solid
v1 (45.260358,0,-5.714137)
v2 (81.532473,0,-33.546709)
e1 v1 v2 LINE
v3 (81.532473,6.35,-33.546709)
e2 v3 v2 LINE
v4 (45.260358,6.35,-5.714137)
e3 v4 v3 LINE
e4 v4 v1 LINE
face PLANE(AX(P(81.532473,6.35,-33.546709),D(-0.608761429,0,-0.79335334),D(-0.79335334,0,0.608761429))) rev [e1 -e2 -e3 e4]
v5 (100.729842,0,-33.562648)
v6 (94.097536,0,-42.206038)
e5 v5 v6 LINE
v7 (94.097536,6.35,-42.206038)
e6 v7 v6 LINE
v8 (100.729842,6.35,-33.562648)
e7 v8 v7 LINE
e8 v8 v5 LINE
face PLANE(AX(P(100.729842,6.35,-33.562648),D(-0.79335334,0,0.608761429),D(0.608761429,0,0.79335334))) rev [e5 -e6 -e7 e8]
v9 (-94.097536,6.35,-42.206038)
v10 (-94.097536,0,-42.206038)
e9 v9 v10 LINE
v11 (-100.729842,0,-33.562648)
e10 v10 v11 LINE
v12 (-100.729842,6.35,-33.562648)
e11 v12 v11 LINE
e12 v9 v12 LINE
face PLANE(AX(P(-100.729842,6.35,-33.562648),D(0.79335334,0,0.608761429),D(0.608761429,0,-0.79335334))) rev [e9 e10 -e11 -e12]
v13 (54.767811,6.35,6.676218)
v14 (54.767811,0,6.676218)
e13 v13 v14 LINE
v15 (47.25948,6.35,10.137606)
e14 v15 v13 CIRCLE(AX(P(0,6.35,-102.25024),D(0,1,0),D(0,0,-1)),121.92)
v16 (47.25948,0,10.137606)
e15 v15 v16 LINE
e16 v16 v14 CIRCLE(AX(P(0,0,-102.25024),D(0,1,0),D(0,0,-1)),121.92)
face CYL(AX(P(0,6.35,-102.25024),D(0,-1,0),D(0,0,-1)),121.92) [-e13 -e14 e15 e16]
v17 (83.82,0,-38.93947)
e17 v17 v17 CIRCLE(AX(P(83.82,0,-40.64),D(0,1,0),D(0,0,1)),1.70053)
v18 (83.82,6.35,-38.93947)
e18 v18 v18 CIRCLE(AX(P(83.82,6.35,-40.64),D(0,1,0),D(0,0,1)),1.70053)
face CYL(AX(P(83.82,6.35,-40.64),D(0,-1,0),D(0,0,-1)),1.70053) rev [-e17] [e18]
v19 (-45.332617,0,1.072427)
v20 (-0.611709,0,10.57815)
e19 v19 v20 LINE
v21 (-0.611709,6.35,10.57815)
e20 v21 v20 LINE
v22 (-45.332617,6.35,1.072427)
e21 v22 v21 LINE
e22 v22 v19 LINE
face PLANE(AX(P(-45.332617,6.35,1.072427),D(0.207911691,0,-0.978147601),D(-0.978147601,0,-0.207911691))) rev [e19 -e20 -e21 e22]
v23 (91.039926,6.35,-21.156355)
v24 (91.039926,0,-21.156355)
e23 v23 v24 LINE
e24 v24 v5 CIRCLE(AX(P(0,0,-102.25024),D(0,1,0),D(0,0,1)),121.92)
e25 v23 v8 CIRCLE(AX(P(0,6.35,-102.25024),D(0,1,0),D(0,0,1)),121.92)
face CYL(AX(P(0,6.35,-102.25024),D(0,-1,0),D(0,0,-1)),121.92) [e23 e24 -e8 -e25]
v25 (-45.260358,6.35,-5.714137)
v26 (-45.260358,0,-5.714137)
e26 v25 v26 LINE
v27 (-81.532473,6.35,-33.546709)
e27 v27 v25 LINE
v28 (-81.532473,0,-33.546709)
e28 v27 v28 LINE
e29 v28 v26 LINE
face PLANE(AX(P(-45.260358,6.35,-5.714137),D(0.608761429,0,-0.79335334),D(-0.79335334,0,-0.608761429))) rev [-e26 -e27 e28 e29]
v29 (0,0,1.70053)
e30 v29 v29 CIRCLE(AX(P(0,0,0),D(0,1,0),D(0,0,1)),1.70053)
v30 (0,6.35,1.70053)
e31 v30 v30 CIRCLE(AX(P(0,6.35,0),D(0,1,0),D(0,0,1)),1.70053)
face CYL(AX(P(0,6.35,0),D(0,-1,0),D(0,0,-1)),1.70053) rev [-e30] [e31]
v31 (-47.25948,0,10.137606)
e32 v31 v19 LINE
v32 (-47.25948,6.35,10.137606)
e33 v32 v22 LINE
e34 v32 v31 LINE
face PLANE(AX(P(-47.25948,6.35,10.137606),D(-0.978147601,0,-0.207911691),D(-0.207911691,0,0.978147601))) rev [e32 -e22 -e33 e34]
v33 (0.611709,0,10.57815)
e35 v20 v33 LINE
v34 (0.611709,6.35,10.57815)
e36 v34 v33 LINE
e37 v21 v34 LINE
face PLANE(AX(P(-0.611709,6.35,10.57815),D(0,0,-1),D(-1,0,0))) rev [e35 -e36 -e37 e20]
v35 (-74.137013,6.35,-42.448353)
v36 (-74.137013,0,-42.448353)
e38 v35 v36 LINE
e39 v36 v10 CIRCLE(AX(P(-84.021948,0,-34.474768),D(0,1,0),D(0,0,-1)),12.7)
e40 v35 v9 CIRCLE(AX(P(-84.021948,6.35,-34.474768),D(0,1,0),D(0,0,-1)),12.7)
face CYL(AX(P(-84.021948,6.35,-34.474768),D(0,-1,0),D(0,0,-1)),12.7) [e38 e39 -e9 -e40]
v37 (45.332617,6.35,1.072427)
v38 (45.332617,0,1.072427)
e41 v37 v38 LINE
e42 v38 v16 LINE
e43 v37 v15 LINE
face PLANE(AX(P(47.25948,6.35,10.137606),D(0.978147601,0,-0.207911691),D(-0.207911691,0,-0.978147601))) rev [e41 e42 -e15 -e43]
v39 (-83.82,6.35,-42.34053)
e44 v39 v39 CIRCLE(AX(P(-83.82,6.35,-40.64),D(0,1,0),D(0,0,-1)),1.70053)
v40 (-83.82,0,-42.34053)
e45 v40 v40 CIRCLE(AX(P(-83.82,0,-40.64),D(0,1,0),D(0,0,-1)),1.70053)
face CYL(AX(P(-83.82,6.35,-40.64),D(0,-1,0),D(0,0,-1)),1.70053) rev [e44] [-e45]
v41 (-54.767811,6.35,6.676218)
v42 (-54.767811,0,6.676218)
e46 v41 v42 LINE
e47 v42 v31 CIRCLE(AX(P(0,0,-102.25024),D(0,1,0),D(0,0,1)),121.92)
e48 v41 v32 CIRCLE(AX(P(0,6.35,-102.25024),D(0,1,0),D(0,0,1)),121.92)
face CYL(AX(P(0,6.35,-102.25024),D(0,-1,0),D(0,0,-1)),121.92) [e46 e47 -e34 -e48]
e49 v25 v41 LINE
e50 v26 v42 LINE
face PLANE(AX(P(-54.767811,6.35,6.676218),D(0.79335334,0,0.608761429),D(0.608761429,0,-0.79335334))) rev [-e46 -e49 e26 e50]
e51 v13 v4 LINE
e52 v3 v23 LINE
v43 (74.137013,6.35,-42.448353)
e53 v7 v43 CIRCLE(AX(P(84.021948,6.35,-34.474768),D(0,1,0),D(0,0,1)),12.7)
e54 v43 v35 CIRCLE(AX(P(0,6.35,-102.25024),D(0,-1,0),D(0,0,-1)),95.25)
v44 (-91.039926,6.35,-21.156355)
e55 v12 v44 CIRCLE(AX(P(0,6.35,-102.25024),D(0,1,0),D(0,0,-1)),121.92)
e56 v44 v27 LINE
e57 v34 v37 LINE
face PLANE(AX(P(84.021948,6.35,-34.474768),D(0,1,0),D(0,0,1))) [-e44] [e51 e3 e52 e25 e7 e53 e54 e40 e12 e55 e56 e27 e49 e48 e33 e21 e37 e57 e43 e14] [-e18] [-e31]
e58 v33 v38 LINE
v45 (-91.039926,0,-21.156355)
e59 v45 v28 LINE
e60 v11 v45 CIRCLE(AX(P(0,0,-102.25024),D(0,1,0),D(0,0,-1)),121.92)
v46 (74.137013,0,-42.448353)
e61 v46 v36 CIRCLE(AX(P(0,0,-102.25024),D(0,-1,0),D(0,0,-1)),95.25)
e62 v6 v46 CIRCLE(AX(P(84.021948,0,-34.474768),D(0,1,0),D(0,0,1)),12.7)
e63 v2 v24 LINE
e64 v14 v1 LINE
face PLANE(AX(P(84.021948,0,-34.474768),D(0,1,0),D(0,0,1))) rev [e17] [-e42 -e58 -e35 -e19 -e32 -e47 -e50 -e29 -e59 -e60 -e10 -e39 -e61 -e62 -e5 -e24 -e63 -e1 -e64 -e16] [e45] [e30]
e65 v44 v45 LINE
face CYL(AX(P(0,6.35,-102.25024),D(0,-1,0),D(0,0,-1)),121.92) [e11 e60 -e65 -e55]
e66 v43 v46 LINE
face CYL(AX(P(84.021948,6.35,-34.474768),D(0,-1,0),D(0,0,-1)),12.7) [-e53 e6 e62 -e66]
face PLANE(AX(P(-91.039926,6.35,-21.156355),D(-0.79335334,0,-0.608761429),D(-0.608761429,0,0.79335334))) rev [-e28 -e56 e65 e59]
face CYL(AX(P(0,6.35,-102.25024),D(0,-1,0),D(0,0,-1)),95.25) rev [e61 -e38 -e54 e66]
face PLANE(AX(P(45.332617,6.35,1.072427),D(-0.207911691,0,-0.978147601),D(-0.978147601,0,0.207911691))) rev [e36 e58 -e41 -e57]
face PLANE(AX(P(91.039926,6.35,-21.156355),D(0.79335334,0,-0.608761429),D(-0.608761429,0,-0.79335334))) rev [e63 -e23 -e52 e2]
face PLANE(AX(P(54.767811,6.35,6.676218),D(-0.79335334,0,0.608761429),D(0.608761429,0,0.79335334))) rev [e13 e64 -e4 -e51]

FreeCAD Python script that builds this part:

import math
import FreeCAD as App
import Part
import Sketcher
from FreeCAD import Vector
Q = App.Units.Quantity

doc = App.newDocument("Part")
body = doc.addObject("PartDesign::Body", "Body")

# Sketch on XZ plane
sketch1 = body.newObject("Sketcher::SketchObject", "Sketch")
sketch1.AttachmentSupport = (doc.getObject("XZ_Plane"), [""])
sketch1.MapMode = "FlatFace"
sketch1.addGeometry([
    Part.LineSegment(Vector(100.7, -33.6, 0), Vector(94.1, -42.2, 0)),  # 0
    Part.ArcOfCircle(Part.Circle(Vector(84, -34.5, 0), Vector(0, 0, 1), 12.7), math.radians(-141), math.radians(-37)),  # 1
    Part.ArcOfCircle(Part.Circle(Vector(0, -102.3, 0), Vector(0, 0, 1), 95.2), math.radians(39), math.radians(141)),  # 2
    Part.ArcOfCircle(Part.Circle(Vector(-84, -34.5, 0), Vector(0, 0, 1), 12.7), math.radians(-143), math.radians(-39)),  # 3
    Part.LineSegment(Vector(-94.1, -42.2, 0), Vector(-100.7, -33.6, 0)),  # 4
    Part.ArcOfCircle(Part.Circle(Vector(0, -102.3, 0), Vector(0, 0, 1), 121.9), math.radians(138.31), math.radians(145.71)),  # 5
    Part.LineSegment(Vector(-91, -21.2, 0), Vector(-81.5, -33.5, 0)),  # 6
    Part.LineSegment(Vector(-81.5, -33.5, 0), Vector(-45.3, -5.7, 0)),  # 7
    Part.LineSegment(Vector(-45.3, -5.7, 0), Vector(-54.8, 6.7, 0)),  # 8
    Part.ArcOfCircle(Part.Circle(Vector(0, -102.3, 0), Vector(0, 0, 1), 121.9), math.radians(112.81), math.radians(116.69)),  # 9
    Part.LineSegment(Vector(-47.3, 10.1, 0), Vector(-45.3, 1.1, 0)),  # 10
    Part.LineSegment(Vector(-45.3, 1.1, 0), Vector(-0.6, 10.6, 0)),  # 11
    Part.LineSegment(Vector(-0.6, 10.6, 0), Vector(0.6, 10.6, 0)),  # 12
    Part.LineSegment(Vector(0.6, 10.6, 0), Vector(45.3, 1.1, 0)),  # 13
    Part.LineSegment(Vector(45.3, 1.1, 0), Vector(47.3, 10.1, 0)),  # 14
    Part.ArcOfCircle(Part.Circle(Vector(0, -102.3, 0), Vector(0, 0, 1), 121.9), math.radians(63.31), math.radians(67.19)),  # 15
    Part.LineSegment(Vector(54.8, 6.7, 0), Vector(45.3, -5.7, 0)),  # 16
    Part.LineSegment(Vector(45.3, -5.7, 0), Vector(81.5, -33.5, 0)),  # 17
    Part.LineSegment(Vector(81.5, -33.5, 0), Vector(91, -21.2, 0)),  # 18
    Part.ArcOfCircle(Part.Circle(Vector(0, -102.3, 0), Vector(0, 0, 1), 121.9), math.radians(34.29), math.radians(41.69)),  # 19
    Part.Circle(Vector(0, 0, 0), Vector(0, 0, 1), 1.7),  # 20
    Part.Circle(Vector(-83.8, -40.6, 0), Vector(0, 0, 1), 1.7),  # 21
    Part.Circle(Vector(83.8, -40.6, 0), Vector(0, 0, 1), 1.7),  # 22
], False)
sketch1.addConstraint([
    Sketcher.Constraint("Tangent", 0, 2, 1, 2),
    Sketcher.Constraint("Tangent", 1, 1, 2, 1),
    Sketcher.Constraint("Tangent", 2, 2, 3, 2),
    Sketcher.Constraint("Tangent", 3, 1, 4, 1),
    Sketcher.Constraint("Coincident", 4, 2, 5, 2),
    Sketcher.Constraint("Coincident", 5, 1, 6, 1),
    Sketcher.Constraint("Coincident", 6, 2, 7, 1),
    Sketcher.Constraint("Coincident", 7, 2, 8, 1),
    Sketcher.Constraint("Coincident", 8, 2, 9, 2),
    Sketcher.Constraint("Coincident", 9, 1, 10, 1),
    Sketcher.Constraint("Coincident", 10, 2, 11, 1),
    Sketcher.Constraint("Coincident", 11, 2, 12, 1),
    Sketcher.Constraint("Coincident", 12, 2, 13, 1),
    Sketcher.Constraint("Coincident", 13, 2, 14, 1),
    Sketcher.Constraint("Coincident", 14, 2, 15, 2),
    Sketcher.Constraint("Coincident", 15, 1, 16, 1),
    Sketcher.Constraint("Coincident", 16, 2, 17, 1),
    Sketcher.Constraint("Coincident", 17, 2, 18, 1),
    Sketcher.Constraint("Coincident", 18, 2, 19, 2),
    Sketcher.Constraint("Coincident", 19, 1, 0, 1),
    Sketcher.Constraint("Horizontal", 12),
    Sketcher.Constraint("Coincident", 20, 3, -1, 1),
    Sketcher.Constraint("Coincident", 5, 3, 2, 3),
    Sketcher.Constraint("Coincident", 9, 3, 2, 3),
    Sketcher.Constraint("Coincident", 15, 3, 2, 3),
    Sketcher.Constraint("Coincident", 19, 3, 2, 3),
    Sketcher.Constraint("Equal", 1, 3),
    Sketcher.Constraint("Equal", 5, 9),
    Sketcher.Constraint("Equal", 9, 15),
    Sketcher.Constraint("Equal", 15, 19),
    Sketcher.Constraint("Equal", 20, 21),
    Sketcher.Constraint("Equal", 21, 22),
    Sketcher.Constraint("Symmetric", 1, 3, 3, 3, -2),
    Sketcher.Constraint("Symmetric", 21, 3, 22, 3, -2),
    Sketcher.Constraint("Symmetric", 10, 2, 13, 2, -2),
    Sketcher.Constraint("Symmetric", 7, 2, 16, 2, -2),
    Sketcher.Constraint("Symmetric", 6, 2, 17, 2, -2),
    Sketcher.Constraint("Parallel", 4, 6),
    Sketcher.Constraint("Perpendicular", 6, 7),
    Sketcher.Constraint("Perpendicular", 7, 8),
    Sketcher.Constraint("Perpendicular", 10, 11),
    Sketcher.Constraint("Perpendicular", 13, 14),
    Sketcher.Constraint("Parallel", 0, 16),
    Sketcher.Constraint("Perpendicular", 16, 17),
    Sketcher.Constraint("Perpendicular", 17, 18),
    Sketcher.Constraint("Equal", 6, 8),
    Sketcher.Constraint("Equal", 7, 11),
    Sketcher.Constraint("Equal", 11, 13),
    Sketcher.Constraint("Radius", 1, Q("0.5 in")),
    Sketcher.Constraint("Radius", 5, Q("4.8 in")),
    Sketcher.Constraint("Radius", 2, Q("3.75 in")),
    Sketcher.Constraint("Angle", 10, Q("-78 deg")),
    Sketcher.Constraint("Distance", 7, Q("1.8 in")),
    Sketcher.Constraint("Diameter", 20, Q("0.1339 in")),
    Sketcher.Constraint("DistanceX", 21, 3, -1, 1, Q("3.3 in")),
    Sketcher.Constraint("DistanceY", 21, 3, -1, 1, Q("1.6 in")),
    Sketcher.Constraint("Angle", 0, Q("-127.5 deg")),
    Sketcher.Constraint("DistanceY", 2, 3, -1, 1, Q("4.0256 in")),
    Sketcher.Constraint("Distance", 6, 15.6177),
    Sketcher.Constraint("Distance", 10, 9.2677),
    Sketcher.Constraint("DistanceY", 15, 3, 0, 2, 60.044202),
    Sketcher.Constraint("DistanceX", 12, 1, 12, 2, 1.223417),
])
pad1 = body.newObject("PartDesign::Pad", "Pad")
pad1.Profile = sketch1
pad1.Length = Q("0.25 in")
pad1.Reversed = True

doc.recompute()
